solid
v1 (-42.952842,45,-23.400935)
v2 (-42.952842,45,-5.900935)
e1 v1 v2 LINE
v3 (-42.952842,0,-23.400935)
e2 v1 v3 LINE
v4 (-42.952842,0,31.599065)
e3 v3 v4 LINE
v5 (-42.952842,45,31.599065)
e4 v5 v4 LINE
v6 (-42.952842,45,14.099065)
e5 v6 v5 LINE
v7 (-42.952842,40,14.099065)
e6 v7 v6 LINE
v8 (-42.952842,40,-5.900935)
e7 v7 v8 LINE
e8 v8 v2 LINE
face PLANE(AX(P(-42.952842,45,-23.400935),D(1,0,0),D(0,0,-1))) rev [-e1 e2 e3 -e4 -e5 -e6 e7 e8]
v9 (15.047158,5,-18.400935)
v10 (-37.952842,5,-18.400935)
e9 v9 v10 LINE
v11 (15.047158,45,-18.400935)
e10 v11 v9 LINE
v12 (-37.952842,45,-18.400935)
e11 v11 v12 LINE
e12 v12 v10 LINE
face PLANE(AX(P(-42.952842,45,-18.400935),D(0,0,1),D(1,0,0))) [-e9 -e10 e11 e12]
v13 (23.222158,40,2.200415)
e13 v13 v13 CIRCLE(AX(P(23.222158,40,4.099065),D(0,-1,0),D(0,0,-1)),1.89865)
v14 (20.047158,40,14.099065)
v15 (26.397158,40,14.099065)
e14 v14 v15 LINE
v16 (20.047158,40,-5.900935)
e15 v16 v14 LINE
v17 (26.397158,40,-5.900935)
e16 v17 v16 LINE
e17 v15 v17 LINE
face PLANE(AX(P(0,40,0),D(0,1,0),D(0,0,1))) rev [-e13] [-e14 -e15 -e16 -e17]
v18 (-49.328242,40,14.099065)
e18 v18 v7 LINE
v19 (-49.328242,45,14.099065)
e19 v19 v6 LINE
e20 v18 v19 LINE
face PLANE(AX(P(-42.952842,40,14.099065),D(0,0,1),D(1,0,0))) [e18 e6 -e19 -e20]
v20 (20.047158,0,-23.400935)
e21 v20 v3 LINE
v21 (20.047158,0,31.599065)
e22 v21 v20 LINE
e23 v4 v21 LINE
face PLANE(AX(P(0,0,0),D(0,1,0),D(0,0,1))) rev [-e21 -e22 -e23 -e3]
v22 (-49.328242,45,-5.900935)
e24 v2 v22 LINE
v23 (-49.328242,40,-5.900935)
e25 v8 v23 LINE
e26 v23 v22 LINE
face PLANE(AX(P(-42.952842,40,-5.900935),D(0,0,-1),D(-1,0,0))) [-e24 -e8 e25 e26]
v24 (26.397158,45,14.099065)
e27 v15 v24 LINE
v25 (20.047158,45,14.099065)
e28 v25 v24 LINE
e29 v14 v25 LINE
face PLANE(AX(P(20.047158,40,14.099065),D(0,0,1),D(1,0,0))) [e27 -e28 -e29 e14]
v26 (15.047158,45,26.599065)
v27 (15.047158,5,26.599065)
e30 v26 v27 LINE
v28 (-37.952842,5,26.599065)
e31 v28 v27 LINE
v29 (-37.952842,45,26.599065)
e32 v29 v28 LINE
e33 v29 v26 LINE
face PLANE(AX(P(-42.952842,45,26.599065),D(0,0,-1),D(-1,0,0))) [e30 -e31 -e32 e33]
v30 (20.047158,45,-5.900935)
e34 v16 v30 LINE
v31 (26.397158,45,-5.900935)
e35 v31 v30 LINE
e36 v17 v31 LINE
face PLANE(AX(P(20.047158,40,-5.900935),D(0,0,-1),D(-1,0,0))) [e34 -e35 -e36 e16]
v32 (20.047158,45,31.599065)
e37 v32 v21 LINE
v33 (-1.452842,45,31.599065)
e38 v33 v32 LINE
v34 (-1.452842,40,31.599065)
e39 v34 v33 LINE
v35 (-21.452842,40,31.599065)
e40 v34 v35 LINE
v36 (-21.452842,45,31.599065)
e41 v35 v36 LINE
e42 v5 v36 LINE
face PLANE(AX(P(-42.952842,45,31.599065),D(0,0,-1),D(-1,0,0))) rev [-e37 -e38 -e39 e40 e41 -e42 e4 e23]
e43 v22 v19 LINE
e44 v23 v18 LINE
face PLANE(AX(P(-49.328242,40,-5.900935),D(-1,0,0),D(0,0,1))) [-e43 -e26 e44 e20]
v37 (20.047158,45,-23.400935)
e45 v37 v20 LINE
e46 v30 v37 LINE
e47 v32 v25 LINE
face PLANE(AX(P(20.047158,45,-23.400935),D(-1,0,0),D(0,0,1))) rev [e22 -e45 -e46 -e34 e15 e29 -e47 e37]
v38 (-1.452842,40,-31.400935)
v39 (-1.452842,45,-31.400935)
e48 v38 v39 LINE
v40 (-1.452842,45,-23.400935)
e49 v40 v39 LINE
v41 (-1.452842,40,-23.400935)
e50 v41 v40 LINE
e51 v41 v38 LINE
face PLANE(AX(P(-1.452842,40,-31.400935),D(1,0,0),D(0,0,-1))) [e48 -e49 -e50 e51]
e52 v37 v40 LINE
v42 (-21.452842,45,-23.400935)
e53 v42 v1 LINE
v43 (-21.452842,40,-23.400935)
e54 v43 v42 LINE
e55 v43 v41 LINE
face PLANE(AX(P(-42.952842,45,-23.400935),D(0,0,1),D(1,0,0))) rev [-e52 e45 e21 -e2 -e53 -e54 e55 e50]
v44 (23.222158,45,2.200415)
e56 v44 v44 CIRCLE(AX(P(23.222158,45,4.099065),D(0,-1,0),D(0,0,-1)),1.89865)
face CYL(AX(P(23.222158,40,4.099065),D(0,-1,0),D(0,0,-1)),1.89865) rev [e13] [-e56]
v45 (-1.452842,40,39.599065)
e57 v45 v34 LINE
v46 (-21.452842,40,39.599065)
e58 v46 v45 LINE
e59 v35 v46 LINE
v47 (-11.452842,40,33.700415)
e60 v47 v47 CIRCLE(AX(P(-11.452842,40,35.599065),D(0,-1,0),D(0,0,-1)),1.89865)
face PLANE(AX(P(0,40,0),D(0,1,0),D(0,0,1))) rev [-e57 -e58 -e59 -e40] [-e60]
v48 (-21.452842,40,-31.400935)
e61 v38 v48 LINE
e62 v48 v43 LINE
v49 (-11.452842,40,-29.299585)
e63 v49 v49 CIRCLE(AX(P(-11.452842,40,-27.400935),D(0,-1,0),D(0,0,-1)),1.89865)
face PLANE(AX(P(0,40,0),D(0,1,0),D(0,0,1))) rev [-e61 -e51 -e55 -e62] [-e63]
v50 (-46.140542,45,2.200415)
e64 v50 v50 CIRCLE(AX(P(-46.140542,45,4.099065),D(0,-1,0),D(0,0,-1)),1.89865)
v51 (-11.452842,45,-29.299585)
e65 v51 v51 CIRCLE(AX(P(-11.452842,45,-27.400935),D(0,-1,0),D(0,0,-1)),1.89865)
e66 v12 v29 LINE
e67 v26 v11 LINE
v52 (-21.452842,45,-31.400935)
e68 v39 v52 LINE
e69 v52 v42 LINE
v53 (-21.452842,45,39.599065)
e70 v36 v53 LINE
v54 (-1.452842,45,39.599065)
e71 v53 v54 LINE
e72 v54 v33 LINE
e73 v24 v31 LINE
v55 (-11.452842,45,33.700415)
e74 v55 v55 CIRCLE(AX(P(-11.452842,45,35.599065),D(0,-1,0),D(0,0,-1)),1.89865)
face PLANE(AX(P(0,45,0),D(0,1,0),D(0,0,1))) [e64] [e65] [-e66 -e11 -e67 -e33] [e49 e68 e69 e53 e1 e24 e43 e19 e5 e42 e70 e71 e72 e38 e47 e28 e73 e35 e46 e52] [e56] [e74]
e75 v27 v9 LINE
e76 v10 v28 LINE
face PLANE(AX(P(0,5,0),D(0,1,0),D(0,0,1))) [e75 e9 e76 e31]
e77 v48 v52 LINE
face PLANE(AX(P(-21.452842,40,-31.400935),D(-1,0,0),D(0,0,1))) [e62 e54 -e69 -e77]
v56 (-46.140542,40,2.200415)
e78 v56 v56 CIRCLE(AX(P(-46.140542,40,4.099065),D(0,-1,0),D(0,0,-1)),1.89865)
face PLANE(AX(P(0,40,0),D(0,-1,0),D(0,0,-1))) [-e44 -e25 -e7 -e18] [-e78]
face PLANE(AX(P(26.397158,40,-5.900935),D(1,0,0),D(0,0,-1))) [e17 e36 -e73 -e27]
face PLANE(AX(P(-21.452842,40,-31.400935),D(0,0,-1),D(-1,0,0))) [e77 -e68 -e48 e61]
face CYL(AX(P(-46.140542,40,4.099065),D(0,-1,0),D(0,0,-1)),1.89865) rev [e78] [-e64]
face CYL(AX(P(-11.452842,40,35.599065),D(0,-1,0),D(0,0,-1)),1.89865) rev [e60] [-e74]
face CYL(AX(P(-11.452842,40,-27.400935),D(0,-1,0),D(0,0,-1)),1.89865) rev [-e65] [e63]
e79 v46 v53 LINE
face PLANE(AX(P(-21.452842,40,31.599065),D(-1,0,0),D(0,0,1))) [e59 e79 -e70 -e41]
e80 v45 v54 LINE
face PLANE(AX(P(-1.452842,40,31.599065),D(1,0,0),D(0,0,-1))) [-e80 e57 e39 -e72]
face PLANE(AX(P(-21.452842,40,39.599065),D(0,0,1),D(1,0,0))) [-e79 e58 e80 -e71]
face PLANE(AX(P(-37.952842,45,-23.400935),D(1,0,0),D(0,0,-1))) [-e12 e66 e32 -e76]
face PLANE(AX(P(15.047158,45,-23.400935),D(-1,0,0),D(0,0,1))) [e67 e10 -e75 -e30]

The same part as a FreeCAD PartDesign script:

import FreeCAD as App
import Part
import Sketcher

V = App.Vector
Q = App.Units.Quantity


def faces_at(feature, points):
    """Names of the faces that lie closest to the given points."""
    faces = feature.Shape.Faces
    near = lambda p: min(range(len(faces)), key=lambda i: faces[i].distToShape(Part.Vertex(*p))[0])
    return sorted({f"Face{near(p) + 1}" for p in points})

doc = App.newDocument("Part")
params = doc.addObject("Spreadsheet::Sheet", "Params")
for row, (alias, value) in enumerate([
    ("sketch1_width", "63 mm"),
    ("sketch1_height", "55 mm"),
    ("pad1_length", "45 mm"),
    ("thickness_wall", "5 mm"),
    ("sketch2_width", "20 mm"),
    ("sketch2_height", "8 mm"),
    ("sketch2_width2", "6.35 mm"),
    ("pad2_length", "5 mm"),
    ("hole_diameter", "3.7973 mm"),
], start=1):
    params.set(f"A{row}", alias)
    params.set(f"B{row}", "=" + value)
    params.setAlias(f"B{row}", alias)

body = doc.addObject("PartDesign::Body", "Body")

sketch1 = body.newObject("Sketcher::SketchObject", "Sketch")
sketch1.AttachmentSupport = (doc.getObject("XZ_Plane"), [""])
sketch1.MapMode = "FlatFace"
sketch1.addGeometry(Part.LineSegment(V(-42.952842, -23.400935, 0), V(-42.952842, 31.599065, 0)), False)
sketch1.addGeometry(Part.LineSegment(V(-42.952842, 31.599065, 0), V(20.047158, 31.599065, 0)), False)
sketch1.addGeometry(Part.LineSegment(V(20.047158, 31.599065, 0), V(20.047158, -23.400935, 0)), False)
sketch1.addGeometry(Part.LineSegment(V(20.047158, -23.400935, 0), V(-42.952842, -23.400935, 0)), False)
sketch1.addConstraint(Sketcher.Constraint("Coincident", 0, 2, 1, 1))
sketch1.addConstraint(Sketcher.Constraint("Coincident", 1, 2, 2, 1))
sketch1.addConstraint(Sketcher.Constraint("Coincident", 2, 2, 3, 1))
sketch1.addConstraint(Sketcher.Constraint("Coincident", 3, 2, 0, 1))
sketch1.addConstraint(Sketcher.Constraint("Vertical", 0))
sketch1.addConstraint(Sketcher.Constraint("Horizontal", 1))
sketch1.addConstraint(Sketcher.Constraint("Vertical", 2))
sketch1.addConstraint(Sketcher.Constraint("Horizontal", 3))
sketch1.addConstraint(Sketcher.Constraint("DistanceX", 1, 1, 1, 2, Q("63 mm")))
sketch1.addConstraint(Sketcher.Constraint("DistanceY", 0, 1, 0, 2, Q("55 mm")))
sketch1.addConstraint(Sketcher.Constraint("DistanceX", 0, 2, -1, 1, Q("42.952842 mm")))
sketch1.addConstraint(Sketcher.Constraint("DistanceY", -1, 1, 0, 2, Q("31.599065 mm")))
sketch1.setExpression("Constraints[8]", "Params.sketch1_width")
sketch1.setExpression("Constraints[9]", "Params.sketch1_height")
pad1 = body.newObject("PartDesign::Pad", "Pad")
pad1.Profile = sketch1
pad1.setExpression("Length", "Params.pad1_length")
pad1.Reversed = True
doc.recompute()

thickness = body.newObject("PartDesign::Thickness", "Thickness")
thickness.Base = (pad1, faces_at(pad1, [(-11.453, 45, 4.099)]))
thickness.setExpression("Value", "Params.thickness_wall")
thickness.Reversed = True
thickness.Join = "Intersection"

sketch2 = body.newObject("Sketcher::SketchObject", "Sketch001")
sketch2.AttachmentSupport = (doc.getObject("XZ_Plane"), [""])
sketch2.MapMode = "FlatFace"
sketch2.AttachmentOffset = App.Placement(V(0, 0, -45), App.Rotation())
sketch2.addGeometry(Part.LineSegment(V(-21.452842, -31.400935, 0), V(-21.452842, -23.400935, 0)), False)
sketch2.addGeometry(Part.LineSegment(V(-21.452842, -23.400935, 0), V(-1.452842, -23.400935, 0)), False)
sketch2.addGeometry(Part.LineSegment(V(-1.452842, -23.400935, 0), V(-1.452842, -31.400935, 0)), False)
sketch2.addGeometry(Part.LineSegment(V(-1.452842, -31.400935, 0), V(-21.452842, -31.400935, 0)), False)
sketch2.addGeometry(Part.LineSegment(V(-21.452842, 31.599065, 0), V(-21.452842, 39.599065, 0)), False)
sketch2.addGeometry(Part.LineSegment(V(-21.452842, 39.599065, 0), V(-1.452842, 39.599065, 0)), False)
sketch2.addGeometry(Part.LineSegment(V(-1.452842, 39.599065, 0), V(-1.452842, 31.599065, 0)), False)
sketch2.addGeometry(Part.LineSegment(V(-1.452842, 31.599065, 0), V(-21.452842, 31.599065, 0)), False)
sketch2.addGeometry(Part.LineSegment(V(-49.328242, -5.900935, 0), V(-49.328242, 14.099065, 0)), False)
sketch2.addGeometry(Part.LineSegment(V(-49.328242, 14.099065, 0), V(-42.952842, 14.099065, 0)), False)
sketch2.addGeometry(Part.LineSegment(V(-42.952842, 14.099065, 0), V(-42.952842, -5.900935, 0)), False)
sketch2.addGeometry(Part.LineSegment(V(-42.952842, -5.900935, 0), V(-49.328242, -5.900935, 0)), False)
sketch2.addGeometry(Part.LineSegment(V(20.047158, -5.900935, 0), V(20.047158, 14.099065, 0)), False)
sketch2.addGeometry(Part.LineSegment(V(20.047158, 14.099065, 0), V(26.397158, 14.099065, 0)), False)
sketch2.addGeometry(Part.LineSegment(V(26.397158, 14.099065, 0), V(26.397158, -5.900935, 0)), False)
sketch2.addGeometry(Part.LineSegment(V(26.397158, -5.900935, 0), V(20.047158, -5.900935, 0)), False)
sketch2.addConstraint(Sketcher.Constraint("Coincident", 0, 2, 1, 1))
sketch2.addConstraint(Sketcher.Constraint("Coincident", 1, 2, 2, 1))
sketch2.addConstraint(Sketcher.Constraint("Coincident", 2, 2, 3, 1))
sketch2.addConstraint(Sketcher.Constraint("Coincident", 3, 2, 0, 1))
sketch2.addConstraint(Sketcher.Constraint("Coincident", 4, 2, 5, 1))
sketch2.addConstraint(Sketcher.Constraint("Coincident", 5, 2, 6, 1))
sketch2.addConstraint(Sketcher.Constraint("Coincident", 6, 2, 7, 1))
sketch2.addConstraint(Sketcher.Constraint("Coincident", 7, 2, 4, 1))
sketch2.addConstraint(Sketcher.Constraint("Coincident", 8, 2, 9, 1))
sketch2.addConstraint(Sketcher.Constraint("Coincident", 9, 2, 10, 1))
sketch2.addConstraint(Sketcher.Constraint("Coincident", 10, 2, 11, 1))
sketch2.addConstraint(Sketcher.Constraint("Coincident", 11, 2, 8, 1))
sketch2.addConstraint(Sketcher.Constraint("Coincident", 12, 2, 13, 1))
sketch2.addConstraint(Sketcher.Constraint("Coincident", 13, 2, 14, 1))
sketch2.addConstraint(Sketcher.Constraint("Coincident", 14, 2, 15, 1))
sketch2.addConstraint(Sketcher.Constraint("Coincident", 15, 2, 12, 1))
sketch2.addConstraint(Sketcher.Constraint("Vertical", 0))
sketch2.addConstraint(Sketcher.Constraint("Horizontal", 1))
sketch2.addConstraint(Sketcher.Constraint("Vertical", 2))
sketch2.addConstraint(Sketcher.Constraint("Horizontal", 3))
sketch2.addConstraint(Sketcher.Constraint("Vertical", 4))
sketch2.addConstraint(Sketcher.Constraint("Horizontal", 5))
sketch2.addConstraint(Sketcher.Constraint("Vertical", 6))
sketch2.addConstraint(Sketcher.Constraint("Horizontal", 7))
sketch2.addConstraint(Sketcher.Constraint("Vertical", 8))
sketch2.addConstraint(Sketcher.Constraint("Horizontal", 9))
sketch2.addConstraint(Sketcher.Constraint("Vertical", 10))
sketch2.addConstraint(Sketcher.Constraint("Horizontal", 11))
sketch2.addConstraint(Sketcher.Constraint("Vertical", 12))
sketch2.addConstraint(Sketcher.Constraint("Horizontal", 13))
sketch2.addConstraint(Sketcher.Constraint("Vertical", 14))
sketch2.addConstraint(Sketcher.Constraint("Horizontal", 15))
sketch2.addConstraint(Sketcher.Constraint("Horizontal", 9, 2, 12, 2))
sketch2.addConstraint(Sketcher.Constraint("Horizontal", 11, 2, 14, 2))
sketch2.addConstraint(Sketcher.Constraint("Vertical", 3, 2, 4, 2))
sketch2.addConstraint(Sketcher.Constraint("Vertical", 2, 2, 5, 2))
sketch2.addConstraint(Sketcher.Constraint("Equal", 2, 4))
sketch2.addConstraint(Sketcher.Constraint("Equal", 7, 8))
sketch2.addConstraint(Sketcher.Constraint("DistanceX", 1, 1, 1, 2, Q("20 mm")))
sketch2.addConstraint(Sketcher.Constraint("DistanceY", 0, 1, 0, 2, Q("8 mm")))
sketch2.addConstraint(Sketcher.Constraint("DistanceY", 0, 2, 4, 2, Q("63 mm")))
sketch2.addConstraint(Sketcher.Constraint("DistanceX", 13, 1, 13, 2, Q("6.35 mm")))
sketch2.addConstraint(Sketcher.Constraint("DistanceY", 8, 2, 7, 2, Q("17.5 mm")))
sketch2.addConstraint(Sketcher.Constraint("DistanceX", 9, 2, 7, 2, Q("21.5 mm")))
sketch2.addConstraint(Sketcher.Constraint("DistanceX", 6, 2, 12, 2, Q("21.5 mm")))
sketch2.addConstraint(Sketcher.Constraint("DistanceX", 9, 1, 9, 2, Q("6.3754 mm")))
sketch2.addConstraint(Sketcher.Constraint("DistanceX", 0, 2, -1, 1, Q("21.452842 mm")))
sketch2.addConstraint(Sketcher.Constraint("DistanceY", 0, 2, -1, 1, Q("23.400935 mm")))
sketch2.setExpression("Constraints[38]", "Params.sketch2_width")
sketch2.setExpression("Constraints[39]", "Params.sketch2_height")
sketch2.setExpression("Constraints[41]", "Params.sketch2_width2")
pad2 = body.newObject("PartDesign::Pad", "Pad001")
pad2.Profile = sketch2
pad2.setExpression("Length", "Params.pad2_length")

sketch3 = body.newObject("Sketcher::SketchObject", "Sketch002")
sketch3.AttachmentSupport = (doc.getObject("XZ_Plane"), [""])
sketch3.MapMode = "FlatFace"
sketch3.AttachmentOffset = App.Placement(V(0, 0, -40), App.Rotation())
sketch3.addGeometry(Part.Circle(V(-11.452842, 35.599065, 0), V(0, 0, 1), 1.89865), False)
sketch3.addGeometry(Part.Circle(V(-11.452842, -27.400935, 0), V(0, 0, 1), 1.89865), False)
sketch3.addGeometry(Part.Circle(V(-46.140542, 4.099065, 0), V(0, 0, 1), 1.89865), False)
sketch3.addGeometry(Part.Circle(V(23.222158, 4.099065, 0), V(0, 0, 1), 1.89865), False)
sketch3.addConstraint(Sketcher.Constraint("Equal", 0, 1))
sketch3.addConstraint(Sketcher.Constraint("Equal", 1, 2))
sketch3.addConstraint(Sketcher.Constraint("Equal", 2, 3))
sketch3.addConstraint(Sketcher.Constraint("Horizontal", 2, 3, 3, 3))
sketch3.addConstraint(Sketcher.Constraint("Vertical", 0, 3, 1, 3))
sketch3.addConstraint(Sketcher.Constraint("DistanceY", 1, 3, 0, 3, Q("63 mm")))
sketch3.addConstraint(Sketcher.Constraint("Diameter", 0, Q("3.7973 mm")))
sketch3.addConstraint(Sketcher.Constraint("DistanceY", 2, 3, 0, 3, Q("31.5 mm")))
sketch3.addConstraint(Sketcher.Constraint("DistanceX", 0, 3, 3, 3, Q("34.675 mm")))
sketch3.addConstraint(Sketcher.Constraint("DistanceX", 2, 3, 0, 3, Q("34.6877 mm")))
sketch3.addConstraint(Sketcher.Constraint("DistanceX", 0, 3, -1, 1, Q("11.452842 mm")))
sketch3.addConstraint(Sketcher.Constraint("DistanceY", -1, 1, 0, 3, Q("35.599065 mm")))
doc.recompute()
hole = body.newObject("PartDesign::Hole", "Hole")
hole.Profile = sketch3
hole.ThreadType = "None"
hole.setExpression("Diameter", "Params.hole_diameter")
hole.DepthType = "ThroughAll"

doc.recompute()
